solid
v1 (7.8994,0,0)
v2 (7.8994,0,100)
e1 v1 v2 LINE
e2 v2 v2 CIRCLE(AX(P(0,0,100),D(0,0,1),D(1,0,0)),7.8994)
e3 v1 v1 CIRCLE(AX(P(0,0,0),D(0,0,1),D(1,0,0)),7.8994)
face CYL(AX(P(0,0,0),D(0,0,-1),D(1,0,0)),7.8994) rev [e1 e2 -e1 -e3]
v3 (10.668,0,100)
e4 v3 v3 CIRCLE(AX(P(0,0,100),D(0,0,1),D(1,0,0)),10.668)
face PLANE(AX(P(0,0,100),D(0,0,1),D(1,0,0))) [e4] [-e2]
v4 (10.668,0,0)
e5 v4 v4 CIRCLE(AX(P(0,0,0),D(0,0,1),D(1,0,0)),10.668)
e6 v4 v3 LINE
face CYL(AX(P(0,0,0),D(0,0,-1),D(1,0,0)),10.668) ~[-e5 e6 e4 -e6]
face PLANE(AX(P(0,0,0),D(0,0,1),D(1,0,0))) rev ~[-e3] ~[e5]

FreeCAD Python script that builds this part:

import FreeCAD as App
import Part
import Sketcher

V = App.Vector
Q = App.Units.Quantity

doc = App.newDocument("Part")
body = doc.addObject("PartDesign::Body", "Body")

# Sketch on XY plane
sketch1 = body.newObject("Sketcher::SketchObject", "Sketch")
sketch1.AttachmentSupport = (doc.getObject("XY_Plane"), [""])
sketch1.MapMode = "FlatFace"
sketch1.addGeometry(Part.Circle(V(0, 0, 0), V(0, 0, 1), 11), False)
sketch1.addGeometry(Part.Circle(V(0, 0, 0), V(0, 0, 1), 8), False)
sketch1.addConstraint(Sketcher.Constraint("Coincident", 0, 3, -1, 1))
sketch1.addConstraint(Sketcher.Constraint("Coincident", 1, 3, -1, 1))
sketch1.addConstraint(Sketcher.Constraint("Diameter", 0, Q("0.84 in")))
sketch1.addConstraint(Sketcher.Constraint("Diameter", 1, Q("0.622 in")))
pad1 = body.newObject("PartDesign::Pad", "Pad")
pad1.Profile = sketch1
pad1.Length = Q("3.9370079 in")

doc.recompute()
